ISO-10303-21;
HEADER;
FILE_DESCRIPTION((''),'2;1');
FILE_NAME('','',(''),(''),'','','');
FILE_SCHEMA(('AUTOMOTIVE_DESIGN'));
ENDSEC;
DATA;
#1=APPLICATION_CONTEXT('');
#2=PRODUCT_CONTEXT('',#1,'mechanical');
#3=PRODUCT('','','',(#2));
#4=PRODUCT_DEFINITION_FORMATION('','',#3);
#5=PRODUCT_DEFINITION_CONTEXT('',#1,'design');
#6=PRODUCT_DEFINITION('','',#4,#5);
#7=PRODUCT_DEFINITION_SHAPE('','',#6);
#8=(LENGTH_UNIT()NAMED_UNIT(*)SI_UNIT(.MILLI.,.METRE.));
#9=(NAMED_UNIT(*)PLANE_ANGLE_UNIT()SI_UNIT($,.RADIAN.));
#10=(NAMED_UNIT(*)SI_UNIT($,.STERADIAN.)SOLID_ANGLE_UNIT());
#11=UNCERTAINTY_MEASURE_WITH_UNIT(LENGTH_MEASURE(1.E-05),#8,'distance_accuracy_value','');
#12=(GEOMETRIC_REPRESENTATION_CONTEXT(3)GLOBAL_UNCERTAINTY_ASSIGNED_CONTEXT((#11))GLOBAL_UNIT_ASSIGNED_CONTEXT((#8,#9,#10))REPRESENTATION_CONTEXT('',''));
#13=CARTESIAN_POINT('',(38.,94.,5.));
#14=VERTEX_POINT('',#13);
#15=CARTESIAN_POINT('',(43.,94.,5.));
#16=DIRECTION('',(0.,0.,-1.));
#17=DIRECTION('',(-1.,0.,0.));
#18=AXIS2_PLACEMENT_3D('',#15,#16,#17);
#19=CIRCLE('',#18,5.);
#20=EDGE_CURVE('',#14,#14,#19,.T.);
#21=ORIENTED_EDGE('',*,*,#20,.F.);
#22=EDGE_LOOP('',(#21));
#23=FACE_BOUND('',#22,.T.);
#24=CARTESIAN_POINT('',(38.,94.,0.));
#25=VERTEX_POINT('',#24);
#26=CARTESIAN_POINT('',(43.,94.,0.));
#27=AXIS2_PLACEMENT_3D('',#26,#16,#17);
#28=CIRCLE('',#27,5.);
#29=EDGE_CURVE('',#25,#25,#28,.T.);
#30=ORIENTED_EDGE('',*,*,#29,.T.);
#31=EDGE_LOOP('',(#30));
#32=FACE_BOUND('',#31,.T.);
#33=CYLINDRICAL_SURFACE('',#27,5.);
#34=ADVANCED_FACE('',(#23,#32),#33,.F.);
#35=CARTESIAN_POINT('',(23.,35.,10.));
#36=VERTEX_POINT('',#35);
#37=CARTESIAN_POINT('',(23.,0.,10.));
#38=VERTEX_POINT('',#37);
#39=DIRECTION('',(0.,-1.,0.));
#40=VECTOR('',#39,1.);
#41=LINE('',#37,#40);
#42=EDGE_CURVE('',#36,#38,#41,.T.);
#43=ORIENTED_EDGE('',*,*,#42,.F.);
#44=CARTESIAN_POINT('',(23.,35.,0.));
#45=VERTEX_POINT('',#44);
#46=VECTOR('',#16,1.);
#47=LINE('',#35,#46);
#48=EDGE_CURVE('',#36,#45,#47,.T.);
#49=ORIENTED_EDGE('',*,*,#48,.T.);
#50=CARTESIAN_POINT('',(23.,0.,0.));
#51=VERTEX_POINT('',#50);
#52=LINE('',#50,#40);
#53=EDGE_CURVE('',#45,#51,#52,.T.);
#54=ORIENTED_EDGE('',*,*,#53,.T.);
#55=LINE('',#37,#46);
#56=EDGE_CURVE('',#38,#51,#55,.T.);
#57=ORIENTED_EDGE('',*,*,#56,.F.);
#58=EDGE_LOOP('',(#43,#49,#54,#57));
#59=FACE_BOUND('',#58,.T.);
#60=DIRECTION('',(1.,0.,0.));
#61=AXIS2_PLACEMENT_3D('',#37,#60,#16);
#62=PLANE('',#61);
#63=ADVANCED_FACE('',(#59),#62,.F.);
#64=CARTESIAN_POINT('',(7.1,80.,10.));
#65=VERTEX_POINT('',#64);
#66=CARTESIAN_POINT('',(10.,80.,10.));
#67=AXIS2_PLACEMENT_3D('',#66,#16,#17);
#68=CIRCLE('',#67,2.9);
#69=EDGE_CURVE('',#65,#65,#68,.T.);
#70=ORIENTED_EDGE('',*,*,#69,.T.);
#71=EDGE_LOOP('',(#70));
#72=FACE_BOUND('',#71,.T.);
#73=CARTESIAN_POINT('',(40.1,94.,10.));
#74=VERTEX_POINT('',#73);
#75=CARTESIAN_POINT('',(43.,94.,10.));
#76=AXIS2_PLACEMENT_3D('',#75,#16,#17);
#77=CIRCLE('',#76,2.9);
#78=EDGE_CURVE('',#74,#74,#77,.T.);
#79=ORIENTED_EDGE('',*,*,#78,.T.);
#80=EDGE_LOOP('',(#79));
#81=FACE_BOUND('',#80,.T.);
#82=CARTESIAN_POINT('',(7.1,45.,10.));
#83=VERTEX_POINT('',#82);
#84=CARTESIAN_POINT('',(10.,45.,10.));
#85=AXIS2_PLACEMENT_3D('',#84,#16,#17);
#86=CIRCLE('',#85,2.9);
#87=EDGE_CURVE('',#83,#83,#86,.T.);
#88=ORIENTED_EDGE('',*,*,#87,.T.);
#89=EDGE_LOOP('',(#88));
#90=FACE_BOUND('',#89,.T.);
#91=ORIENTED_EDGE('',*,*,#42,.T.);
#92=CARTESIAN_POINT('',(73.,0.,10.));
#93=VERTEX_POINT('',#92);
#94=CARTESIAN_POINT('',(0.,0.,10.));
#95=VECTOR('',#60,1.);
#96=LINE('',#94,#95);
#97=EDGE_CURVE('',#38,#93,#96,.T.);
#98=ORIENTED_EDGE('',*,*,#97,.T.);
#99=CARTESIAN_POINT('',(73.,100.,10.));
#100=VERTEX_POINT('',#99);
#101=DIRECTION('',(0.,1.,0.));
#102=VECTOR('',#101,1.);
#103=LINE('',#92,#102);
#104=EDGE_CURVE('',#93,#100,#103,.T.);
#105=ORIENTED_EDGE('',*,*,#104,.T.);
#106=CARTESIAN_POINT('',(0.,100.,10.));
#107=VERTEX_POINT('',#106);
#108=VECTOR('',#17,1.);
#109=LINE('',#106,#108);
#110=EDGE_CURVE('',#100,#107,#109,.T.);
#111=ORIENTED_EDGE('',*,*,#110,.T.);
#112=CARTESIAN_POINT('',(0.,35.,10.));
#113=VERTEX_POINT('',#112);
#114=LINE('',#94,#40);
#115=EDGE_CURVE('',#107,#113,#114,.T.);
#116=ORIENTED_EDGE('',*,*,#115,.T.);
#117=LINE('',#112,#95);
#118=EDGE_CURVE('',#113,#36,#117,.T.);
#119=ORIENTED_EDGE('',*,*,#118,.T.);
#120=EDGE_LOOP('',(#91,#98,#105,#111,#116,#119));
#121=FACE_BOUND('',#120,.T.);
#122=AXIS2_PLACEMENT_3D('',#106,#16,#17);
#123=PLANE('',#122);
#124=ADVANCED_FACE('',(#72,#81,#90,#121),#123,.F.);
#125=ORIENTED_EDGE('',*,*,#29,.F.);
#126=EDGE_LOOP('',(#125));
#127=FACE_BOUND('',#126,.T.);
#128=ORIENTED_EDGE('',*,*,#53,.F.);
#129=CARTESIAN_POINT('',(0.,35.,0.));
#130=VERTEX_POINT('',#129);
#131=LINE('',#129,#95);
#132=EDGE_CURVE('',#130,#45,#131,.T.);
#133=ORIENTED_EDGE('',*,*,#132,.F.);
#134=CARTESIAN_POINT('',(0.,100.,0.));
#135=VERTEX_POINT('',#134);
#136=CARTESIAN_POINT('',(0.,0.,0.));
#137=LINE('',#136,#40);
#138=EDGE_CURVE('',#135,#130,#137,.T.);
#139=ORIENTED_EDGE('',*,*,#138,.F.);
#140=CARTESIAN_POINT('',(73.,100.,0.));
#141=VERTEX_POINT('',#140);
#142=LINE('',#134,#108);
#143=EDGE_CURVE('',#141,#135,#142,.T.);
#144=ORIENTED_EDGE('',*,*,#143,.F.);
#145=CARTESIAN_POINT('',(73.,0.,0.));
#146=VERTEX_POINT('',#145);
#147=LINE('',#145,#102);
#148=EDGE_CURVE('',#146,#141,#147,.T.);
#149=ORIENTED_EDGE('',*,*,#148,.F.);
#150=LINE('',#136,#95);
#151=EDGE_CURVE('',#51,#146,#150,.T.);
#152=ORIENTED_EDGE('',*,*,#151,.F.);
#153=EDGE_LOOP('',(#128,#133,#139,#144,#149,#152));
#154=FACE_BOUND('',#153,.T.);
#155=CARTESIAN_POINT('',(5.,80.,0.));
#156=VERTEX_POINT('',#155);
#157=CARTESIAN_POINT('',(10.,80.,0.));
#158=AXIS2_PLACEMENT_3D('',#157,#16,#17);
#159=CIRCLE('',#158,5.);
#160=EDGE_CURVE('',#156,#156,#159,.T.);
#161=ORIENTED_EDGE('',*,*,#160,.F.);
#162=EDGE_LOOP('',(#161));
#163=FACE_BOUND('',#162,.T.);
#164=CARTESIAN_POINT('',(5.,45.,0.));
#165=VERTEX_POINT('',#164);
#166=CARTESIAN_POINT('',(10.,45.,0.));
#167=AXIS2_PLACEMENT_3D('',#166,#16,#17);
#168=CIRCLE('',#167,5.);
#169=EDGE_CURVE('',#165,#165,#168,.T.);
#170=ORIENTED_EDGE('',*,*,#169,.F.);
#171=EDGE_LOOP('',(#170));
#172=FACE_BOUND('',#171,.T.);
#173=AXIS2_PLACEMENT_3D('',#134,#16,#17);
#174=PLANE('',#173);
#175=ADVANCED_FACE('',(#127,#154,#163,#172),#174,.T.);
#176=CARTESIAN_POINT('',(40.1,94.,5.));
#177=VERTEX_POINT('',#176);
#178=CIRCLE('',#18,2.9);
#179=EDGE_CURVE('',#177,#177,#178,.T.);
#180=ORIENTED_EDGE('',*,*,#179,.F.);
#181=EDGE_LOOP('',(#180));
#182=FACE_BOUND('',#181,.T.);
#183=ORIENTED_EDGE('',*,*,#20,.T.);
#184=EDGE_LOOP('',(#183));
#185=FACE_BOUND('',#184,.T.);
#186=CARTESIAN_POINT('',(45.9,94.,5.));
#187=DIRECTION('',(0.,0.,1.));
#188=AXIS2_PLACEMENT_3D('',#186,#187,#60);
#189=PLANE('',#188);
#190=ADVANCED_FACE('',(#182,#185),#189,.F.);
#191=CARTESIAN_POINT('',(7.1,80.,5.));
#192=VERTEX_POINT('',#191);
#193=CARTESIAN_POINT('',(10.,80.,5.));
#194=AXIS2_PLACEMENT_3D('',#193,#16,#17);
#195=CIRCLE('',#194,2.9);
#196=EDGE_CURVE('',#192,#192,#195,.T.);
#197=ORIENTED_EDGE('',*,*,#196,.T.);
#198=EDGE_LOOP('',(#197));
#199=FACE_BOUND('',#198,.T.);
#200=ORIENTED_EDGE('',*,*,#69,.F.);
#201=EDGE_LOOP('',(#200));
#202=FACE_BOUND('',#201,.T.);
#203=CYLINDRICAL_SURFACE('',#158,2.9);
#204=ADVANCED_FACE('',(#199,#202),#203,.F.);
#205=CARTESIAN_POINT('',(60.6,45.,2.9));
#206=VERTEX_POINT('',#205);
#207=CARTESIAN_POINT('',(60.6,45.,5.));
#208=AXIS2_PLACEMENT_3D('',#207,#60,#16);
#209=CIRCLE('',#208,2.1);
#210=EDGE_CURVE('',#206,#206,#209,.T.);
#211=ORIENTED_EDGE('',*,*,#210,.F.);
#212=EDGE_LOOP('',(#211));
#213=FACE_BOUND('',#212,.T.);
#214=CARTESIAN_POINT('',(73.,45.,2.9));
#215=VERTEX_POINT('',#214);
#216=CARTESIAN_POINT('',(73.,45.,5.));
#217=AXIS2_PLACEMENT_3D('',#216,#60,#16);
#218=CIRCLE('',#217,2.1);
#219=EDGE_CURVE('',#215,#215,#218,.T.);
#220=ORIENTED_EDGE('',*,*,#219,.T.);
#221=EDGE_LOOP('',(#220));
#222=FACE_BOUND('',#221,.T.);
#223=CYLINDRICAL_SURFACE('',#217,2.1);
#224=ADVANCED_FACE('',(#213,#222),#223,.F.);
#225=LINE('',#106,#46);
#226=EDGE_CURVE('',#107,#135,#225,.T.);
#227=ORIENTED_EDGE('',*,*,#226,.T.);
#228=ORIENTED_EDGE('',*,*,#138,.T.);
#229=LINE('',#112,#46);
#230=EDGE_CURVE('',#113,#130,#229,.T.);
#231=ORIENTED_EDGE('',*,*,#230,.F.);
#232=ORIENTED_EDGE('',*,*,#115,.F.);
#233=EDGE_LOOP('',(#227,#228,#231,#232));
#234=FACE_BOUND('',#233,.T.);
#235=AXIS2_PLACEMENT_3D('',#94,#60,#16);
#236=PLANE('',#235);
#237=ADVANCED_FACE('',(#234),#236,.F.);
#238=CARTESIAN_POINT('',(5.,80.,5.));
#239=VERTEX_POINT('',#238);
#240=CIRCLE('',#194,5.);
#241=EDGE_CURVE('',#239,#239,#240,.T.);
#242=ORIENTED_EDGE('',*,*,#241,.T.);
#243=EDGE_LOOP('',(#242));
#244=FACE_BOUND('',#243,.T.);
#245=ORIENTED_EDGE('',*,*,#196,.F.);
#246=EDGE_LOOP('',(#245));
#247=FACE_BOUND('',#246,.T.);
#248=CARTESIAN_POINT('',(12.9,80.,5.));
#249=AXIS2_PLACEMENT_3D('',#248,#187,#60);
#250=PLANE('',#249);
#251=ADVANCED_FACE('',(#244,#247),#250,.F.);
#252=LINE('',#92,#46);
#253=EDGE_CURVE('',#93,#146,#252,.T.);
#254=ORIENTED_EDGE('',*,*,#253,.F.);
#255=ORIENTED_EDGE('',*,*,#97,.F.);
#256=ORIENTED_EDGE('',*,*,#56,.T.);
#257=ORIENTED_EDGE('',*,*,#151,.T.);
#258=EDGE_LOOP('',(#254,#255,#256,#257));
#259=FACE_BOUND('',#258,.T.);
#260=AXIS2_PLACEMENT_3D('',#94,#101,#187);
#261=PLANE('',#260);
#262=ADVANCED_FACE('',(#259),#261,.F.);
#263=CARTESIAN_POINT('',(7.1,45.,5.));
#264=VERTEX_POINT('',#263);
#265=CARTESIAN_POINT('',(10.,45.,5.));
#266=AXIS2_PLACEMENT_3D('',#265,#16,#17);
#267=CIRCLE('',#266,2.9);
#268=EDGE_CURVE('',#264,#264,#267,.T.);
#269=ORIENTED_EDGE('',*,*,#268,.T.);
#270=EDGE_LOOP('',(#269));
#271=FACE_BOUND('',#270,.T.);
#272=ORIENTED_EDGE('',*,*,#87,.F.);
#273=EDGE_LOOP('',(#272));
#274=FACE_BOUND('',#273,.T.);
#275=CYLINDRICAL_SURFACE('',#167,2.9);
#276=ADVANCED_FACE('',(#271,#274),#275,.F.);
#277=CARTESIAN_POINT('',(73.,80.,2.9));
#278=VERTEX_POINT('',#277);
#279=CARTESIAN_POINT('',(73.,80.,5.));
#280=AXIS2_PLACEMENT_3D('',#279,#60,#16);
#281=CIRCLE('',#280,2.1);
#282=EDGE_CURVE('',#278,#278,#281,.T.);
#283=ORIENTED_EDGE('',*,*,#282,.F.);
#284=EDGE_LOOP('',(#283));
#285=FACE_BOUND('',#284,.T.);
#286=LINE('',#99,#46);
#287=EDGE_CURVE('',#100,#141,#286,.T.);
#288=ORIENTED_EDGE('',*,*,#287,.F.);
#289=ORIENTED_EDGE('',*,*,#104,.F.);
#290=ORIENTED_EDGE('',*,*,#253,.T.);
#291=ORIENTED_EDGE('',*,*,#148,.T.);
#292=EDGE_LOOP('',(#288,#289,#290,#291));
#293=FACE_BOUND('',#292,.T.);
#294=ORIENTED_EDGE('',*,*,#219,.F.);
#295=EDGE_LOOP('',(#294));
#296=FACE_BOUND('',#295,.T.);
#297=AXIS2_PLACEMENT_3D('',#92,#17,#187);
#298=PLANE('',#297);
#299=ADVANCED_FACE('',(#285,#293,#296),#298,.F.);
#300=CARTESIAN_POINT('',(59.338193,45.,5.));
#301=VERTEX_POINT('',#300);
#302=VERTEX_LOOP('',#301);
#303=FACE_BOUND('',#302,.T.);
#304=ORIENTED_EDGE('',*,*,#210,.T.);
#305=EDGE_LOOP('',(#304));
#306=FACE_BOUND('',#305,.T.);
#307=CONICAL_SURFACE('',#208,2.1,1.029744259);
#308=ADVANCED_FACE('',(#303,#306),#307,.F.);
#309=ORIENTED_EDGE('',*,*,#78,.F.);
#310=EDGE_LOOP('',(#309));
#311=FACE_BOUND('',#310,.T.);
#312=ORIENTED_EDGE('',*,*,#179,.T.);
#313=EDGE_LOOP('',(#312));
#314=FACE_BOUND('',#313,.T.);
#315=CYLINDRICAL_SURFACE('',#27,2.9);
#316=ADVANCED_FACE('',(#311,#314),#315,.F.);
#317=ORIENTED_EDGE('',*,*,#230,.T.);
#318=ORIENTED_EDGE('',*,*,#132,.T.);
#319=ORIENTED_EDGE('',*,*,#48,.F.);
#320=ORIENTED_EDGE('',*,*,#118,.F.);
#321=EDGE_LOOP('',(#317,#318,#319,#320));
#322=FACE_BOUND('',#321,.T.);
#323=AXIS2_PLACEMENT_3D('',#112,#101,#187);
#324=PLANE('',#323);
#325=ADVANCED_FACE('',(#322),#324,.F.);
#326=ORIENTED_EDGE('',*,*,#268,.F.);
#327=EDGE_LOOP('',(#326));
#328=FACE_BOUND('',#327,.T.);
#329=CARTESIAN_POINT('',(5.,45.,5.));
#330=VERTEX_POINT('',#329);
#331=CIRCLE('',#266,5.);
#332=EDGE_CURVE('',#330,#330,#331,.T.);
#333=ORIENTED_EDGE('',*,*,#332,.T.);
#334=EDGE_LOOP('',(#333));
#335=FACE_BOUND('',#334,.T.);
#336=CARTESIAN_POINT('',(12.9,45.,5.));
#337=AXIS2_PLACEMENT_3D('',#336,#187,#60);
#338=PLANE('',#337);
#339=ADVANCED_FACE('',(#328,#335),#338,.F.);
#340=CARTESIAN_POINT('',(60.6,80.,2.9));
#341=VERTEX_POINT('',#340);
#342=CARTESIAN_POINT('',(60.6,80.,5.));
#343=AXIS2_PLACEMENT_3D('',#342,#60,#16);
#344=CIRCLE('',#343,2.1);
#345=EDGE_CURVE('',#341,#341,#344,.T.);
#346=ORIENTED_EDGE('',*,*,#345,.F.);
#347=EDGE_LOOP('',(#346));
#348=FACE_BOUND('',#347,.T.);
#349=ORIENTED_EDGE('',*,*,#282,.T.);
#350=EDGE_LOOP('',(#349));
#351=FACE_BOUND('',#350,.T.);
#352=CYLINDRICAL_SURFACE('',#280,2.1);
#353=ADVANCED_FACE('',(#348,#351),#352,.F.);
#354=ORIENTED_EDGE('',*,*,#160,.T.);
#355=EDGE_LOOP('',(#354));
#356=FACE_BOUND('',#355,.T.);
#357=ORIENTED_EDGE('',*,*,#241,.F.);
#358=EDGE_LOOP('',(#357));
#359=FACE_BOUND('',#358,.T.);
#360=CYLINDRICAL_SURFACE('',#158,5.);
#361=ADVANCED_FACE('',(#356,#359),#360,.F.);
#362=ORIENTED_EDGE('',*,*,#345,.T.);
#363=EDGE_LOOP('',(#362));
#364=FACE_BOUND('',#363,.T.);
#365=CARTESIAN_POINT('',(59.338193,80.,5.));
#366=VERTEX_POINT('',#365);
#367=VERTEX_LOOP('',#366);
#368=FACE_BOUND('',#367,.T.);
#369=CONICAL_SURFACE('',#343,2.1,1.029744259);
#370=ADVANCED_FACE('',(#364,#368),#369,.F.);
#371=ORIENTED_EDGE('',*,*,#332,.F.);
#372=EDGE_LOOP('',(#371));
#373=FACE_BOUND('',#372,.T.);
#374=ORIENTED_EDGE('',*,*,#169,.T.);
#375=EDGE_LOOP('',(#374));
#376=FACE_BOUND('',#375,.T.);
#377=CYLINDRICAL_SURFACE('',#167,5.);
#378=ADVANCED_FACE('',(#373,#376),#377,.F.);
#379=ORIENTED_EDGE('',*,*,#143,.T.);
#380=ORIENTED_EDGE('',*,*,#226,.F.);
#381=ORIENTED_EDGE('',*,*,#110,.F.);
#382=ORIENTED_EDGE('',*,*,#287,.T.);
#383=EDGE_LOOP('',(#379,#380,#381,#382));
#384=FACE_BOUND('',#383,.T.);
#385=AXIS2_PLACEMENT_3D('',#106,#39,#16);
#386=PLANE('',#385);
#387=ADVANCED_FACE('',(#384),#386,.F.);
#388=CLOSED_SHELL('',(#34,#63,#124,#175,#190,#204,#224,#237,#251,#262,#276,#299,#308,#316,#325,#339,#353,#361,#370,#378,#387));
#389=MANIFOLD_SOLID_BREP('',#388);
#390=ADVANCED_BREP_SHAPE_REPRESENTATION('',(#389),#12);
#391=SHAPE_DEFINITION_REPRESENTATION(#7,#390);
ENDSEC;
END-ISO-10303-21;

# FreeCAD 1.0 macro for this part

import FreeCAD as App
import Part
import Sketcher

V = App.Vector
Q = App.Units.Quantity

doc = App.newDocument("Part")
body = doc.addObject("PartDesign::Body", "Body")

sketch1 = doc.addObject("Sketcher::SketchObject", "Sketch")
body.addObject(sketch1)
sketch1.AttachmentSupport = (doc.XY_Plane, [""])
sketch1.MapMode = "FlatFace"
sketch1.addGeometry(Part.LineSegment(V(0, 100, 0), V(0, 0, 0)), False)
sketch1.addGeometry(Part.LineSegment(V(0, 0, 0), V(73, 0, 0)), False)
sketch1.addGeometry(Part.LineSegment(V(73, 0, 0), V(73, 100, 0)), False)
sketch1.addGeometry(Part.LineSegment(V(73, 100, 0), V(0, 100, 0)), False)
sketch1.addConstraint(Sketcher.Constraint("Coincident", 0, 2, 1, 1))
sketch1.addConstraint(Sketcher.Constraint("Coincident", 1, 2, 2, 1))
sketch1.addConstraint(Sketcher.Constraint("Coincident", 2, 2, 3, 1))
sketch1.addConstraint(Sketcher.Constraint("Coincident", 3, 2, 0, 1))
sketch1.addConstraint(Sketcher.Constraint("Vertical", 0))
sketch1.addConstraint(Sketcher.Constraint("Horizontal", 1))
sketch1.addConstraint(Sketcher.Constraint("Vertical", 2))
sketch1.addConstraint(Sketcher.Constraint("Horizontal", 3))
sketch1.addConstraint(Sketcher.Constraint("Coincident", 0, 2, -1, 1))
sketch1.addConstraint(Sketcher.Constraint("DistanceX", 1, 1, 1, 2, Q("73 mm")))
sketch1.addConstraint(Sketcher.Constraint("DistanceY", 0, 2, 0, 1, Q("100 mm")))
pad1 = doc.addObject("PartDesign::Pad", "Pad")
body.addObject(pad1)
pad1.Profile = sketch1
pad1.Length = 10

sketch2 = doc.addObject("Sketcher::SketchObject", "Sketch001")
body.addObject(sketch2)
sketch2.AttachmentSupport = (doc.XY_Plane, [""])
sketch2.MapMode = "FlatFace"
sketch2.addGeometry(Part.Circle(V(10, 80, 0), V(0, 0, 1), 2.9), False)
sketch2.addGeometry(Part.Circle(V(43, 94, 0), V(0, 0, 1), 2.9), False)
sketch2.addGeometry(Part.Circle(V(10, 45, 0), V(0, 0, 1), 2.9), False)
sketch2.addConstraint(Sketcher.Constraint("Equal", 0, 1))
sketch2.addConstraint(Sketcher.Constraint("Equal", 1, 2))
sketch2.addConstraint(Sketcher.Constraint("Vertical", 0, 3, 2, 3))
sketch2.addConstraint(Sketcher.Constraint("Diameter", 0, Q("5.8 mm")))
sketch2.addConstraint(Sketcher.Constraint("DistanceX", -1, 1, 0, 3, Q("10 mm")))
sketch2.addConstraint(Sketcher.Constraint("DistanceY", -1, 1, 0, 3, Q("80 mm")))
sketch2.addConstraint(Sketcher.Constraint("DistanceX", -1, 1, 1, 3, Q("43 mm")))
sketch2.addConstraint(Sketcher.Constraint("DistanceY", -1, 1, 1, 3, Q("94 mm")))
sketch2.addConstraint(Sketcher.Constraint("DistanceY", -1, 1, 2, 3, Q("45 mm")))
doc.recompute()
hole = doc.addObject("PartDesign::Hole", "Hole")
body.addObject(hole)
hole.Profile = sketch2
hole.ThreadType = "None"
hole.Diameter = 5.8
hole.DepthType = "ThroughAll"
hole.HoleCutType = "Counterbore"
hole.HoleCutDiameter = 10
hole.HoleCutDepth = 5
hole.Reversed = True

sketch3 = doc.addObject("Sketcher::SketchObject", "Sketch002")
body.addObject(sketch3)
sketch3.AttachmentSupport = (doc.YZ_Plane, [""])
sketch3.MapMode = "FlatFace"
sketch3.AttachmentOffset = App.Placement(V(0, 0, 73), App.Rotation())
sketch3.addGeometry(Part.Circle(V(80, 5, 0), V(0, 0, 1), 2.1), False)
sketch3.addGeometry(Part.Circle(V(45, 5, 0), V(0, 0, 1), 2.1), False)
sketch3.addConstraint(Sketcher.Constraint("Equal", 0, 1))
sketch3.addConstraint(Sketcher.Constraint("Horizontal", 0, 3, 1, 3))
sketch3.addConstraint(Sketcher.Constraint("Diameter", 0, Q("4.2 mm")))
sketch3.addConstraint(Sketcher.Constraint("DistanceX", -1, 1, 0, 3, Q("80 mm")))
sketch3.addConstraint(Sketcher.Constraint("DistanceY", -1, 1, 0, 3, Q("5 mm")))
sketch3.addConstraint(Sketcher.Constraint("DistanceX", -1, 1, 1, 3, Q("45 mm")))
doc.recompute()
hole2 = doc.addObject("PartDesign::Hole", "Hole001")
body.addObject(hole2)
hole2.Profile = sketch3
hole2.ThreadType = "None"
hole2.Diameter = 4.2
hole2.DepthType = "Dimension"
hole2.Depth = 12.4
hole2.DrillPoint = "Angled"
hole2.DrillPointAngle = 118

sketch4 = doc.addObject("Sketcher::SketchObject", "Sketch003")
body.addObject(sketch4)
sketch4.AttachmentSupport = (doc.XY_Plane, [""])
sketch4.MapMode = "FlatFace"
sketch4.addGeometry(Part.LineSegment(V(23, 35, 0), V(23, 0, 0)), False)
sketch4.addGeometry(Part.LineSegment(V(23, 0, 0), V(0, 0, 0)), False)
sketch4.addGeometry(Part.LineSegment(V(0, 0, 0), V(0, 35, 0)), False)
sketch4.addGeometry(Part.LineSegment(V(0, 35, 0), V(23, 35, 0)), False)
sketch4.addConstraint(Sketcher.Constraint("Coincident", 0, 2, 1, 1))
sketch4.addConstraint(Sketcher.Constraint("Coincident", 1, 2, 2, 1))
sketch4.addConstraint(Sketcher.Constraint("Coincident", 2, 2, 3, 1))
sketch4.addConstraint(Sketcher.Constraint("Coincident", 3, 2, 0, 1))
sketch4.addConstraint(Sketcher.Constraint("Vertical", 0))
sketch4.addConstraint(Sketcher.Constraint("Horizontal", 1))
sketch4.addConstraint(Sketcher.Constraint("Vertical", 2))
sketch4.addConstraint(Sketcher.Constraint("Horizontal", 3))
sketch4.addConstraint(Sketcher.Constraint("Coincident", 1, 2, -1, 1))
sketch4.addConstraint(Sketcher.Constraint("DistanceX", 1, 2, 1, 1, Q("23 mm")))
sketch4.addConstraint(Sketcher.Constraint("DistanceY", 0, 2, 0, 1, Q("35 mm")))
pocket1 = doc.addObject("PartDesign::Pocket", "Pocket")
body.addObject(pocket1)
pocket1.Profile = sketch4
pocket1.Type = "ThroughAll"
pocket1.Reversed = True

doc.recompute()
